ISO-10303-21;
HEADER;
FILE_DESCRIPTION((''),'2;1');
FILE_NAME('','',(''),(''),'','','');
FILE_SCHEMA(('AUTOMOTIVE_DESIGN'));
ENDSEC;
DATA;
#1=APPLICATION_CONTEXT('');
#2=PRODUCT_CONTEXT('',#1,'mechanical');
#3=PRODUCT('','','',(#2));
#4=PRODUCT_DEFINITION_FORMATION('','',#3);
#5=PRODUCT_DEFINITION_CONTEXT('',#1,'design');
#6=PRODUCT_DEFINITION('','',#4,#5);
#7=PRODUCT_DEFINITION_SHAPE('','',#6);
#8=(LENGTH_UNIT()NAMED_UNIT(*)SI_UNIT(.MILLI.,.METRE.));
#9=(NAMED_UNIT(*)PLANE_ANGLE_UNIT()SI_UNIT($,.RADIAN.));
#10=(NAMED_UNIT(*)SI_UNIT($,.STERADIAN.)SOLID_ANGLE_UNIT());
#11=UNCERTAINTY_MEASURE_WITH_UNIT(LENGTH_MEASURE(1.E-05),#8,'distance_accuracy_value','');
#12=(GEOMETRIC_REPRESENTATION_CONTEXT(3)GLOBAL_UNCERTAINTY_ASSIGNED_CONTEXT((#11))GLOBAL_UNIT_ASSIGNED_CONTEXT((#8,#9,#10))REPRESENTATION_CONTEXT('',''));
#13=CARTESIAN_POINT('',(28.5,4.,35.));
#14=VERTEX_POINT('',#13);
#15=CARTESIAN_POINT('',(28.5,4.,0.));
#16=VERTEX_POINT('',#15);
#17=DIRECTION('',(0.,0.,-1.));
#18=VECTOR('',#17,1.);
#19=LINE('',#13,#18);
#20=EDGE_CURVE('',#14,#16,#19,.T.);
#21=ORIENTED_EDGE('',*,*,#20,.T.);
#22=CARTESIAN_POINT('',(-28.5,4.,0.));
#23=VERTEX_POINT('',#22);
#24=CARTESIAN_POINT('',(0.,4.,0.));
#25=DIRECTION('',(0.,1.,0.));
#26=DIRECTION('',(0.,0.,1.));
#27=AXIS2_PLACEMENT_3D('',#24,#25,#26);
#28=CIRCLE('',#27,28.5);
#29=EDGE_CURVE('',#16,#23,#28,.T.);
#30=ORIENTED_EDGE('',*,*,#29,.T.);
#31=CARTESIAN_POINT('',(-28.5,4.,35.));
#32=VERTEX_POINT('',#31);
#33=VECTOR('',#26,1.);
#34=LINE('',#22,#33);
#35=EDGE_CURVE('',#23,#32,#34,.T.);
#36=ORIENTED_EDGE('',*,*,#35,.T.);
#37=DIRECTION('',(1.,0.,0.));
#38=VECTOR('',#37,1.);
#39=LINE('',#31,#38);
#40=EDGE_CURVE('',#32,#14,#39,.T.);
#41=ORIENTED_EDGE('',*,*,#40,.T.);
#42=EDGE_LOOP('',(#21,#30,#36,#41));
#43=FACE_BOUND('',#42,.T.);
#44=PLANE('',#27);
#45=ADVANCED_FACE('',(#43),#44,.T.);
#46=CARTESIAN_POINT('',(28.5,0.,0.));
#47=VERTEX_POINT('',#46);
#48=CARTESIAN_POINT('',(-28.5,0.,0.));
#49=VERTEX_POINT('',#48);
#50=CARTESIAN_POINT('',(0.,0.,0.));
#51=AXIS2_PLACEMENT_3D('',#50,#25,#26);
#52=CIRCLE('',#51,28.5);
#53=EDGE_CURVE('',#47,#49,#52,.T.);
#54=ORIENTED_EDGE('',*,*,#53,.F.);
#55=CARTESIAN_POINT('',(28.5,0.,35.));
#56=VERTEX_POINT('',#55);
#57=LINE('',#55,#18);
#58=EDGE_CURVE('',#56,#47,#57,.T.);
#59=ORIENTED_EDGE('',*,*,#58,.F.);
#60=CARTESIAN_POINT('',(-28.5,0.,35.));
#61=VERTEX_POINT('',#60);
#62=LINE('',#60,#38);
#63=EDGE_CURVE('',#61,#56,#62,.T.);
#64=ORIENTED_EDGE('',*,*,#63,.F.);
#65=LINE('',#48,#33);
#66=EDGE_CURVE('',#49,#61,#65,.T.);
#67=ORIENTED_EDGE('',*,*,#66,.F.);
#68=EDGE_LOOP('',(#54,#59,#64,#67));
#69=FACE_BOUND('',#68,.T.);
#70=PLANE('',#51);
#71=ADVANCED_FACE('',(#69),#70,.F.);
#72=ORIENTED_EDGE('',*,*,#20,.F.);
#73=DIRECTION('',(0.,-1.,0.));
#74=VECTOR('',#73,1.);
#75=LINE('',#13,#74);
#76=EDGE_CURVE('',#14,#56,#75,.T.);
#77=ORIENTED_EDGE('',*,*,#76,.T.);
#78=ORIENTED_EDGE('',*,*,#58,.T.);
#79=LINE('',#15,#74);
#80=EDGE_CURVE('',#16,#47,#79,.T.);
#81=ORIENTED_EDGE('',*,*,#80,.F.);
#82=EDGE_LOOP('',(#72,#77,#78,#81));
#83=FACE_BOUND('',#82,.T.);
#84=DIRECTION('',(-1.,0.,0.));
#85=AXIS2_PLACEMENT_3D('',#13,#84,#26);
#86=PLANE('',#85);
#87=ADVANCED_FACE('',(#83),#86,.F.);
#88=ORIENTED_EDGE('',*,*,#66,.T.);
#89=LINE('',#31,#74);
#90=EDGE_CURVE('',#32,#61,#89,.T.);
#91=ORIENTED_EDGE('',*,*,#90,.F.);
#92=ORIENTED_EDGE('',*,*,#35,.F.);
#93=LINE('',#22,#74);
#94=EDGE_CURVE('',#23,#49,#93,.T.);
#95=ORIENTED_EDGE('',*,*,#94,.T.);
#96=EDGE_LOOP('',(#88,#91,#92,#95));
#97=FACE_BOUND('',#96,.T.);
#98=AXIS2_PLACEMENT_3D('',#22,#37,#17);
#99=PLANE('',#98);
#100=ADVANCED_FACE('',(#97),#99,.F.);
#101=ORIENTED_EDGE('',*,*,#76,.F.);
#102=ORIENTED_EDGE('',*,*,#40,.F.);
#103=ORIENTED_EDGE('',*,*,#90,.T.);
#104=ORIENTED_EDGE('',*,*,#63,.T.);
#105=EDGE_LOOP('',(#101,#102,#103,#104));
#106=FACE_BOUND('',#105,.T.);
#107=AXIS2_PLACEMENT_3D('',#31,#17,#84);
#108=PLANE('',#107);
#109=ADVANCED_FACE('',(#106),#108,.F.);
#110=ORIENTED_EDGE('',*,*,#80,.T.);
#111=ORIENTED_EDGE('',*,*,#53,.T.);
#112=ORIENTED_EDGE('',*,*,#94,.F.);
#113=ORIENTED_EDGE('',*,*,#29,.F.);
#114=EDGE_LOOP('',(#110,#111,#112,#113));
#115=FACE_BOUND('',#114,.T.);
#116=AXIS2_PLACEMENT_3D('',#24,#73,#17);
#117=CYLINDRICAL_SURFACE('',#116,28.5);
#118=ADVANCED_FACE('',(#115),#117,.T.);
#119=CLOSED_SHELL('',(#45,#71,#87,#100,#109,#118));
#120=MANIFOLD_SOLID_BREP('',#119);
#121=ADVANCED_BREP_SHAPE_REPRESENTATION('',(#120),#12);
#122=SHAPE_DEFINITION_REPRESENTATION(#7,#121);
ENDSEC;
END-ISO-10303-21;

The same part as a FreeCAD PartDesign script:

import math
import FreeCAD as App
import Part
import Sketcher

V = App.Vector
Q = App.Units.Quantity

doc = App.newDocument("Part")
body = doc.addObject("PartDesign::Body", "Body")

sketch1 = doc.addObject("Sketcher::SketchObject", "Sketch")
body.addObject(sketch1)
sketch1.AttachmentSupport = (doc.XZ_Plane, [""])
sketch1.MapMode = "FlatFace"
sketch1.addGeometry(Part.LineSegment(V(-28, 0, 0), V(-28, 35, 0)), False)
sketch1.addGeometry(Part.LineSegment(V(-28, 35, 0), V(28, 35, 0)), False)
sketch1.addGeometry(Part.LineSegment(V(28, 35, 0), V(28, 0, 0)), False)
sketch1.addGeometry(Part.ArcOfCircle(Part.Circle(V(0, 0, 0), V(0, 0, 1), 28), math.radians(180), math.radians(360)), False)
sketch1.addConstraint(Sketcher.Constraint("Coincident", 0, 2, 1, 1))
sketch1.addConstraint(Sketcher.Constraint("Coincident", 1, 2, 2, 1))
sketch1.addConstraint(Sketcher.Constraint("Tangent", 2, 2, 3, 2))
sketch1.addConstraint(Sketcher.Constraint("Tangent", 3, 1, 0, 1))
sketch1.addConstraint(Sketcher.Constraint("Vertical", 0))
sketch1.addConstraint(Sketcher.Constraint("Horizontal", 1))
sketch1.addConstraint(Sketcher.Constraint("Vertical", 2))
sketch1.addConstraint(Sketcher.Constraint("Coincident", 3, 3, -1, 1))
sketch1.addConstraint(Sketcher.Constraint("Radius", 3, Q("28.5 mm")))
sketch1.addConstraint(Sketcher.Constraint("DistanceY", 0, 1, 0, 2, Q("35 mm")))
pad1 = doc.addObject("PartDesign::Pad", "Pad")
body.addObject(pad1)
pad1.Profile = sketch1
pad1.Length = 4
pad1.Reversed = True

doc.recompute()
